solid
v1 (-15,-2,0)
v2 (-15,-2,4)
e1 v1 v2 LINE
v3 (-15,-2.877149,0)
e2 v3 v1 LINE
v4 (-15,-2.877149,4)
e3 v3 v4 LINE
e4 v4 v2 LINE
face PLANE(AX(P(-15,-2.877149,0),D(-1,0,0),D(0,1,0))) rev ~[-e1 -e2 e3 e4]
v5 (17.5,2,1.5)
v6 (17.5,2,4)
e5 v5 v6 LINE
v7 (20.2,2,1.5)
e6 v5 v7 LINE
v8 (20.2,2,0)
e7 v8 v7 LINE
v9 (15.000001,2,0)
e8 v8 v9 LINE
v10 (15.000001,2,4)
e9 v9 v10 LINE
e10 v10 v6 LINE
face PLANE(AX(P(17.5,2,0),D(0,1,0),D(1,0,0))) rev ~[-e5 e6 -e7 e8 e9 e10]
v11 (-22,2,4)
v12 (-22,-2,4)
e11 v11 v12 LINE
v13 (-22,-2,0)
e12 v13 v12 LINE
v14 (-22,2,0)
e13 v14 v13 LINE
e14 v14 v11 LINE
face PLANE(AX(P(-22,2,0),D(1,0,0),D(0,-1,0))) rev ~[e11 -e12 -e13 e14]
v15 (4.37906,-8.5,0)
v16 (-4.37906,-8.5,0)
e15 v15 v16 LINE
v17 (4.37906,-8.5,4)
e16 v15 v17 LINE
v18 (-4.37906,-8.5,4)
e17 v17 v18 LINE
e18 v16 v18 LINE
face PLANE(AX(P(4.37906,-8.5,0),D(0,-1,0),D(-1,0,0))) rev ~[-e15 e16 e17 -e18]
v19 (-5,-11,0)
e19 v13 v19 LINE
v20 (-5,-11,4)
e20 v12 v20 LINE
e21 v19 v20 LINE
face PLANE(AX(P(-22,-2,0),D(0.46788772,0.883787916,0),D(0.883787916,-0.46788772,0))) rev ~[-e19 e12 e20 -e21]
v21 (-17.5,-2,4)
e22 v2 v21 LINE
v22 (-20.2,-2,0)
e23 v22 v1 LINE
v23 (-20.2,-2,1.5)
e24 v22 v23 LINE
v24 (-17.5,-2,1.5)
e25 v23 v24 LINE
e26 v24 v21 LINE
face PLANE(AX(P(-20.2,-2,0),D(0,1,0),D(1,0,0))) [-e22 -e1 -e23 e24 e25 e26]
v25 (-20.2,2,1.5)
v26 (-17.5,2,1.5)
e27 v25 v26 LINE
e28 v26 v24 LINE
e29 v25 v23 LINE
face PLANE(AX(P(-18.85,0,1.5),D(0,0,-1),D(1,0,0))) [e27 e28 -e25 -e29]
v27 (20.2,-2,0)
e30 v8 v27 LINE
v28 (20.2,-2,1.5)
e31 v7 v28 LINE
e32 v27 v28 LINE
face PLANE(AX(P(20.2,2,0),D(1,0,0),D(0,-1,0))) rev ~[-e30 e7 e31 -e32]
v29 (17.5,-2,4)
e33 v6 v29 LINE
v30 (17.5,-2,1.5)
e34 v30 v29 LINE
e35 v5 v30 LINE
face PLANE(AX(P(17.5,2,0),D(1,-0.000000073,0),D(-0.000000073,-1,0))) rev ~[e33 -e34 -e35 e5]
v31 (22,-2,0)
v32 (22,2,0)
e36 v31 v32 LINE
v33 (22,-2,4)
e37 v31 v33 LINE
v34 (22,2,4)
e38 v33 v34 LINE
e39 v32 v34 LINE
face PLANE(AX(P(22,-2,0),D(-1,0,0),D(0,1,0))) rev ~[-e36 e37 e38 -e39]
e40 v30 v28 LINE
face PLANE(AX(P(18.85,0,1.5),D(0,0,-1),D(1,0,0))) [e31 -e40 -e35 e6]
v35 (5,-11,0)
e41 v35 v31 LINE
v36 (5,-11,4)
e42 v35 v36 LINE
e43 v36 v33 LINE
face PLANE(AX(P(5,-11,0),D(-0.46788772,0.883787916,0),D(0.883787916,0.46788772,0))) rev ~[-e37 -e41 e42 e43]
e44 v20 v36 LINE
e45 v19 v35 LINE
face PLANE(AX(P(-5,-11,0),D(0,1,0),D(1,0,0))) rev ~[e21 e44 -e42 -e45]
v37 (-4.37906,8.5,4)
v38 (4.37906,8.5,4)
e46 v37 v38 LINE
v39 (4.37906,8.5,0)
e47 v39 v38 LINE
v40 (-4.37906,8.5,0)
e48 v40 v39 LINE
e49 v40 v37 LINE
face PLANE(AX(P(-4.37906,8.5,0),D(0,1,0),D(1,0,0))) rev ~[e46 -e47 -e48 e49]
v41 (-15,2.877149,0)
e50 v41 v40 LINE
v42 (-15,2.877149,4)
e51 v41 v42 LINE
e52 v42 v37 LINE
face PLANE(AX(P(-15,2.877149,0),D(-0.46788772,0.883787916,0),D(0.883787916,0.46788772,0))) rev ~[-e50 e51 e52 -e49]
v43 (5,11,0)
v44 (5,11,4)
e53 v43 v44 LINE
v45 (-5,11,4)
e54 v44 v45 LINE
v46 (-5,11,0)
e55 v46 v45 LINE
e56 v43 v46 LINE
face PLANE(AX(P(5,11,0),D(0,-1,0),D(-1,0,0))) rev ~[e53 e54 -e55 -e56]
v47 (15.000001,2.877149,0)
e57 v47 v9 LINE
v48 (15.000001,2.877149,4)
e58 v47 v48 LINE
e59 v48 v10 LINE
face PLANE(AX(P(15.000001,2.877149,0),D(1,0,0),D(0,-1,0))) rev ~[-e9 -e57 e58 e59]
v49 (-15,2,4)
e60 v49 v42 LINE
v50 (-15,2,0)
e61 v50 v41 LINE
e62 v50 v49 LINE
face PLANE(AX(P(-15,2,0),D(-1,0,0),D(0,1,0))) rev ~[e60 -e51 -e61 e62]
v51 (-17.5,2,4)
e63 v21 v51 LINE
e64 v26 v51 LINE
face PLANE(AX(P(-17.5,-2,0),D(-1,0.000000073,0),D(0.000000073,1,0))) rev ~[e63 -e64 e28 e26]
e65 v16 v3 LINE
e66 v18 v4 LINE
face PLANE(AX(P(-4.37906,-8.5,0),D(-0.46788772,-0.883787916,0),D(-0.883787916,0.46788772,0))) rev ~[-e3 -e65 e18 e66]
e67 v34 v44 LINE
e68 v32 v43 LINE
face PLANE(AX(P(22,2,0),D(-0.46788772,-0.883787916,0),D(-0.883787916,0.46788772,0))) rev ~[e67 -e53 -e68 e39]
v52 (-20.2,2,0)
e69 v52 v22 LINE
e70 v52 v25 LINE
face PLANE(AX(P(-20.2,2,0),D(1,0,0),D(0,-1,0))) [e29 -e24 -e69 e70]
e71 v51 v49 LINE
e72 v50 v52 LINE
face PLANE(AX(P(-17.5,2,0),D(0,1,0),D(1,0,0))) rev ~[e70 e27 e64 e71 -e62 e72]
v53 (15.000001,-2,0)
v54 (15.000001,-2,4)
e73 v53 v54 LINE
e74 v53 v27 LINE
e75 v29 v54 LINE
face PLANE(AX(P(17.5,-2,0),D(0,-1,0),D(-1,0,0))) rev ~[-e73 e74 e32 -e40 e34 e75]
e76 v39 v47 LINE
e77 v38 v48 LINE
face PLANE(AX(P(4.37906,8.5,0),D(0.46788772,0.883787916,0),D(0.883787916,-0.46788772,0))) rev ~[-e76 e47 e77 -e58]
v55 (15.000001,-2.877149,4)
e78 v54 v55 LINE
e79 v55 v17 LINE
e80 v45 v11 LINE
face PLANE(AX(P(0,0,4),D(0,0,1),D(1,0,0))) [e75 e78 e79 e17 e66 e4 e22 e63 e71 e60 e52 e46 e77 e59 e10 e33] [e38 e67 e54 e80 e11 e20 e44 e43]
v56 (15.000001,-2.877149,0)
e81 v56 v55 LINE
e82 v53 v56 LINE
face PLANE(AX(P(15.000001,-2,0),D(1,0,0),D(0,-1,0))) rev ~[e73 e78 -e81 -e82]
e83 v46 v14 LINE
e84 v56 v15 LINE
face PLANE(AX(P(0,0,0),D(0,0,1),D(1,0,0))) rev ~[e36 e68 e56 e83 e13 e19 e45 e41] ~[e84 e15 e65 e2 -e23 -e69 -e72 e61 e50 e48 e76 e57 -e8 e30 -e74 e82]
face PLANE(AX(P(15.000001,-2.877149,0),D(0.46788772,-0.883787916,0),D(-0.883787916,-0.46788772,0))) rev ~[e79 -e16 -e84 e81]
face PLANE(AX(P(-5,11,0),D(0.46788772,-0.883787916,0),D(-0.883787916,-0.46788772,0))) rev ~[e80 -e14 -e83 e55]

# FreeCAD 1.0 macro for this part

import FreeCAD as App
import Part
import Sketcher

V = App.Vector
Q = App.Units.Quantity


def add_polygon(sketch, points):
    """Adds a closed chain of lines whose ends are joined by coincident constraints."""
    first, n = sketch.GeometryCount, len(points)
    for a, b in zip(points, points[1:] + points[:1]):
        sketch.addGeometry(Part.LineSegment(App.Vector(*a, 0), App.Vector(*b, 0)), False)
    for i in range(n):
        sketch.addConstraint(Sketcher.Constraint("Coincident", first + i, 2, first + (i + 1) % n, 1))

doc = App.newDocument("Part")
params = doc.addObject("Spreadsheet::Sheet", "Params")
for row, (alias, value) in enumerate([
    ("sketch1_width", "10 mm"),
    ("sketch1_height", "4 mm"),
    ("sketch1_width2", "2.500001 mm"),
    ("pad1_length", "4 mm"),
    ("sketch2_height", "4 mm"),
    ("sketch2_width", "2.7 mm"),
    ("pocket1_length", "1.5 mm"),
], start=1):
    params.set(f"A{row}", alias)
    params.set(f"B{row}", "=" + value)
    params.setAlias(f"B{row}", alias)

body = doc.addObject("PartDesign::Body", "Body")

# Sketch on XY plane
sketch1 = doc.addObject("Sketcher::SketchObject", "Sketch")
body.addObject(sketch1)
sketch1.AttachmentSupport = (doc.XY_Plane, [""])
sketch1.MapMode = "FlatFace"
add_polygon(sketch1, [(-5, -11), (5, -11), (22, -2), (22, 2), (5, 11), (-5, 11), (-22, 2), (-22, -2)])  # lines 0-7
add_polygon(sketch1, [(15, -2), (15, -2.9), (4.4, -8.5), (-4.4, -8.5), (-15, -2.9), (-15, -2), (-17.5, -2), (-17.5, 2), (-15, 2), (-15, 2.9), (-4.4, 8.5), (4.4, 8.5), (15, 2.9), (15, 2), (17.5, 2), (17.5, -2)])  # lines 8-23
sketch1.addConstraint(Sketcher.Constraint("Horizontal", 0))
sketch1.addConstraint(Sketcher.Constraint("Vertical", 2))
sketch1.addConstraint(Sketcher.Constraint("Horizontal", 4))
sketch1.addConstraint(Sketcher.Constraint("Vertical", 6))
sketch1.addConstraint(Sketcher.Constraint("Vertical", 8))
sketch1.addConstraint(Sketcher.Constraint("Horizontal", 10))
sketch1.addConstraint(Sketcher.Constraint("Vertical", 12))
sketch1.addConstraint(Sketcher.Constraint("Horizontal", 13))
sketch1.addConstraint(Sketcher.Constraint("Vertical", 14))
sketch1.addConstraint(Sketcher.Constraint("Horizontal", 15))
sketch1.addConstraint(Sketcher.Constraint("Vertical", 16))
sketch1.addConstraint(Sketcher.Constraint("Horizontal", 18))
sketch1.addConstraint(Sketcher.Constraint("Vertical", 20))
sketch1.addConstraint(Sketcher.Constraint("Horizontal", 21))
sketch1.addConstraint(Sketcher.Constraint("Vertical", 22))
sketch1.addConstraint(Sketcher.Constraint("Horizontal", 23))
sketch1.addConstraint(Sketcher.Constraint("Symmetric", 0, 2, 4, 2, -1, 1))
sketch1.addConstraint(Sketcher.Constraint("Symmetric", 1, 2, 5, 2, -1, 1))
sketch1.addConstraint(Sketcher.Constraint("Symmetric", 8, 2, 16, 2, -1, 1))
sketch1.addConstraint(Sketcher.Constraint("Symmetric", 9, 2, 17, 2, -1, 1))
sketch1.addConstraint(Sketcher.Constraint("Symmetric", 11, 2, 19, 2, -1, 1))
sketch1.addConstraint(Sketcher.Constraint("Symmetric", 13, 2, 21, 2, -1, 1))
sketch1.addConstraint(Sketcher.Constraint("Symmetric", 8, 2, 11, 2, -2))
sketch1.addConstraint(Sketcher.Constraint("Parallel", 3, 7))
sketch1.addConstraint(Sketcher.Constraint("Parallel", 5, 9))
sketch1.addConstraint(Sketcher.Constraint("Parallel", 7, 11))
sketch1.addConstraint(Sketcher.Constraint("Parallel", 11, 19))
sketch1.addConstraint(Sketcher.Constraint("Horizontal", 2, 2, 5, 2))
sketch1.addConstraint(Sketcher.Constraint("Horizontal", 1, 2, 6, 2))
sketch1.addConstraint(Sketcher.Constraint("Horizontal", 6, 2, 12, 2))
sketch1.addConstraint(Sketcher.Constraint("Horizontal", 5, 2, 14, 2))
sketch1.addConstraint(Sketcher.Constraint("Horizontal", 13, 2, 22, 2))
sketch1.addConstraint(Sketcher.Constraint("Vertical", 0, 2, 3, 2))
sketch1.addConstraint(Sketcher.Constraint("DistanceX", 0, 1, 0, 2, Q("10 mm")))
sketch1.addConstraint(Sketcher.Constraint("DistanceY", 2, 1, 2, 2, Q("4 mm")))
sketch1.addConstraint(Sketcher.Constraint("DistanceX", 13, 2, 13, 1, Q("2.500001 mm")))
sketch1.addConstraint(Sketcher.Constraint("DistanceY", 0, 2, -1, 1, Q("11 mm")))
sketch1.addConstraint(Sketcher.Constraint("DistanceX", -1, 1, 1, 2, Q("22 mm")))
sketch1.addConstraint(Sketcher.Constraint("DistanceX", -1, 1, 8, 2, Q("15.000001 mm")))
sketch1.addConstraint(Sketcher.Constraint("DistanceY", 9, 2, 18, 2, Q("17 mm")))
sketch1.addConstraint(Sketcher.Constraint("DistanceX", 10, 2, 10, 1, Q("8.75812 mm")))
sketch1.setExpression("Constraints[57]", "Params.sketch1_width")
sketch1.setExpression("Constraints[58]", "Params.sketch1_height")
sketch1.setExpression("Constraints[59]", "Params.sketch1_width2")
pad1 = doc.addObject("PartDesign::Pad", "Pad")
body.addObject(pad1)
pad1.Profile = sketch1
pad1.setExpression("Length", "Params.pad1_length")

# Sketch on XY plane
sketch2 = doc.addObject("Sketcher::SketchObject", "Sketch001")
body.addObject(sketch2)
sketch2.AttachmentSupport = (doc.XY_Plane, [""])
sketch2.MapMode = "FlatFace"
add_polygon(sketch2, [(-20.2, -2), (-20.2, 2), (-17.5, 2), (-17.5, -2)])  # lines 0-3
add_polygon(sketch2, [(17.5, -2), (17.5, 2), (20.2, 2), (20.2, -2)])  # lines 4-7
sketch2.addConstraint(Sketcher.Constraint("Vertical", 0))
sketch2.addConstraint(Sketcher.Constraint("Horizontal", 1))
sketch2.addConstraint(Sketcher.Constraint("Vertical", 2))
sketch2.addConstraint(Sketcher.Constraint("Horizontal", 3))
sketch2.addConstraint(Sketcher.Constraint("Vertical", 4))
sketch2.addConstraint(Sketcher.Constraint("Horizontal", 5))
sketch2.addConstraint(Sketcher.Constraint("Vertical", 6))
sketch2.addConstraint(Sketcher.Constraint("Horizontal", 7))
sketch2.addConstraint(Sketcher.Constraint("Symmetric", 2, 2, 4, 2, -1, 1))
sketch2.addConstraint(Sketcher.Constraint("Symmetric", 0, 2, 6, 2, -1, 1))
sketch2.addConstraint(Sketcher.Constraint("Horizontal", 1, 2, 4, 2))
sketch2.addConstraint(Sketcher.Constraint("DistanceY", 0, 1, 0, 2, Q("4 mm")))
sketch2.addConstraint(Sketcher.Constraint("DistanceX", 1, 1, 1, 2, Q("2.7 mm")))
sketch2.addConstraint(Sketcher.Constraint("DistanceX", 1, 2, 4, 2, Q("35 mm")))
sketch2.setExpression("Constraints[19]", "Params.sketch2_height")
sketch2.setExpression("Constraints[20]", "Params.sketch2_width")
pocket1 = doc.addObject("PartDesign::Pocket", "Pocket")
body.addObject(pocket1)
pocket1.Profile = sketch2
pocket1.setExpression("Length", "Params.pocket1_length")
pocket1.Reversed = True

doc.recompute()
